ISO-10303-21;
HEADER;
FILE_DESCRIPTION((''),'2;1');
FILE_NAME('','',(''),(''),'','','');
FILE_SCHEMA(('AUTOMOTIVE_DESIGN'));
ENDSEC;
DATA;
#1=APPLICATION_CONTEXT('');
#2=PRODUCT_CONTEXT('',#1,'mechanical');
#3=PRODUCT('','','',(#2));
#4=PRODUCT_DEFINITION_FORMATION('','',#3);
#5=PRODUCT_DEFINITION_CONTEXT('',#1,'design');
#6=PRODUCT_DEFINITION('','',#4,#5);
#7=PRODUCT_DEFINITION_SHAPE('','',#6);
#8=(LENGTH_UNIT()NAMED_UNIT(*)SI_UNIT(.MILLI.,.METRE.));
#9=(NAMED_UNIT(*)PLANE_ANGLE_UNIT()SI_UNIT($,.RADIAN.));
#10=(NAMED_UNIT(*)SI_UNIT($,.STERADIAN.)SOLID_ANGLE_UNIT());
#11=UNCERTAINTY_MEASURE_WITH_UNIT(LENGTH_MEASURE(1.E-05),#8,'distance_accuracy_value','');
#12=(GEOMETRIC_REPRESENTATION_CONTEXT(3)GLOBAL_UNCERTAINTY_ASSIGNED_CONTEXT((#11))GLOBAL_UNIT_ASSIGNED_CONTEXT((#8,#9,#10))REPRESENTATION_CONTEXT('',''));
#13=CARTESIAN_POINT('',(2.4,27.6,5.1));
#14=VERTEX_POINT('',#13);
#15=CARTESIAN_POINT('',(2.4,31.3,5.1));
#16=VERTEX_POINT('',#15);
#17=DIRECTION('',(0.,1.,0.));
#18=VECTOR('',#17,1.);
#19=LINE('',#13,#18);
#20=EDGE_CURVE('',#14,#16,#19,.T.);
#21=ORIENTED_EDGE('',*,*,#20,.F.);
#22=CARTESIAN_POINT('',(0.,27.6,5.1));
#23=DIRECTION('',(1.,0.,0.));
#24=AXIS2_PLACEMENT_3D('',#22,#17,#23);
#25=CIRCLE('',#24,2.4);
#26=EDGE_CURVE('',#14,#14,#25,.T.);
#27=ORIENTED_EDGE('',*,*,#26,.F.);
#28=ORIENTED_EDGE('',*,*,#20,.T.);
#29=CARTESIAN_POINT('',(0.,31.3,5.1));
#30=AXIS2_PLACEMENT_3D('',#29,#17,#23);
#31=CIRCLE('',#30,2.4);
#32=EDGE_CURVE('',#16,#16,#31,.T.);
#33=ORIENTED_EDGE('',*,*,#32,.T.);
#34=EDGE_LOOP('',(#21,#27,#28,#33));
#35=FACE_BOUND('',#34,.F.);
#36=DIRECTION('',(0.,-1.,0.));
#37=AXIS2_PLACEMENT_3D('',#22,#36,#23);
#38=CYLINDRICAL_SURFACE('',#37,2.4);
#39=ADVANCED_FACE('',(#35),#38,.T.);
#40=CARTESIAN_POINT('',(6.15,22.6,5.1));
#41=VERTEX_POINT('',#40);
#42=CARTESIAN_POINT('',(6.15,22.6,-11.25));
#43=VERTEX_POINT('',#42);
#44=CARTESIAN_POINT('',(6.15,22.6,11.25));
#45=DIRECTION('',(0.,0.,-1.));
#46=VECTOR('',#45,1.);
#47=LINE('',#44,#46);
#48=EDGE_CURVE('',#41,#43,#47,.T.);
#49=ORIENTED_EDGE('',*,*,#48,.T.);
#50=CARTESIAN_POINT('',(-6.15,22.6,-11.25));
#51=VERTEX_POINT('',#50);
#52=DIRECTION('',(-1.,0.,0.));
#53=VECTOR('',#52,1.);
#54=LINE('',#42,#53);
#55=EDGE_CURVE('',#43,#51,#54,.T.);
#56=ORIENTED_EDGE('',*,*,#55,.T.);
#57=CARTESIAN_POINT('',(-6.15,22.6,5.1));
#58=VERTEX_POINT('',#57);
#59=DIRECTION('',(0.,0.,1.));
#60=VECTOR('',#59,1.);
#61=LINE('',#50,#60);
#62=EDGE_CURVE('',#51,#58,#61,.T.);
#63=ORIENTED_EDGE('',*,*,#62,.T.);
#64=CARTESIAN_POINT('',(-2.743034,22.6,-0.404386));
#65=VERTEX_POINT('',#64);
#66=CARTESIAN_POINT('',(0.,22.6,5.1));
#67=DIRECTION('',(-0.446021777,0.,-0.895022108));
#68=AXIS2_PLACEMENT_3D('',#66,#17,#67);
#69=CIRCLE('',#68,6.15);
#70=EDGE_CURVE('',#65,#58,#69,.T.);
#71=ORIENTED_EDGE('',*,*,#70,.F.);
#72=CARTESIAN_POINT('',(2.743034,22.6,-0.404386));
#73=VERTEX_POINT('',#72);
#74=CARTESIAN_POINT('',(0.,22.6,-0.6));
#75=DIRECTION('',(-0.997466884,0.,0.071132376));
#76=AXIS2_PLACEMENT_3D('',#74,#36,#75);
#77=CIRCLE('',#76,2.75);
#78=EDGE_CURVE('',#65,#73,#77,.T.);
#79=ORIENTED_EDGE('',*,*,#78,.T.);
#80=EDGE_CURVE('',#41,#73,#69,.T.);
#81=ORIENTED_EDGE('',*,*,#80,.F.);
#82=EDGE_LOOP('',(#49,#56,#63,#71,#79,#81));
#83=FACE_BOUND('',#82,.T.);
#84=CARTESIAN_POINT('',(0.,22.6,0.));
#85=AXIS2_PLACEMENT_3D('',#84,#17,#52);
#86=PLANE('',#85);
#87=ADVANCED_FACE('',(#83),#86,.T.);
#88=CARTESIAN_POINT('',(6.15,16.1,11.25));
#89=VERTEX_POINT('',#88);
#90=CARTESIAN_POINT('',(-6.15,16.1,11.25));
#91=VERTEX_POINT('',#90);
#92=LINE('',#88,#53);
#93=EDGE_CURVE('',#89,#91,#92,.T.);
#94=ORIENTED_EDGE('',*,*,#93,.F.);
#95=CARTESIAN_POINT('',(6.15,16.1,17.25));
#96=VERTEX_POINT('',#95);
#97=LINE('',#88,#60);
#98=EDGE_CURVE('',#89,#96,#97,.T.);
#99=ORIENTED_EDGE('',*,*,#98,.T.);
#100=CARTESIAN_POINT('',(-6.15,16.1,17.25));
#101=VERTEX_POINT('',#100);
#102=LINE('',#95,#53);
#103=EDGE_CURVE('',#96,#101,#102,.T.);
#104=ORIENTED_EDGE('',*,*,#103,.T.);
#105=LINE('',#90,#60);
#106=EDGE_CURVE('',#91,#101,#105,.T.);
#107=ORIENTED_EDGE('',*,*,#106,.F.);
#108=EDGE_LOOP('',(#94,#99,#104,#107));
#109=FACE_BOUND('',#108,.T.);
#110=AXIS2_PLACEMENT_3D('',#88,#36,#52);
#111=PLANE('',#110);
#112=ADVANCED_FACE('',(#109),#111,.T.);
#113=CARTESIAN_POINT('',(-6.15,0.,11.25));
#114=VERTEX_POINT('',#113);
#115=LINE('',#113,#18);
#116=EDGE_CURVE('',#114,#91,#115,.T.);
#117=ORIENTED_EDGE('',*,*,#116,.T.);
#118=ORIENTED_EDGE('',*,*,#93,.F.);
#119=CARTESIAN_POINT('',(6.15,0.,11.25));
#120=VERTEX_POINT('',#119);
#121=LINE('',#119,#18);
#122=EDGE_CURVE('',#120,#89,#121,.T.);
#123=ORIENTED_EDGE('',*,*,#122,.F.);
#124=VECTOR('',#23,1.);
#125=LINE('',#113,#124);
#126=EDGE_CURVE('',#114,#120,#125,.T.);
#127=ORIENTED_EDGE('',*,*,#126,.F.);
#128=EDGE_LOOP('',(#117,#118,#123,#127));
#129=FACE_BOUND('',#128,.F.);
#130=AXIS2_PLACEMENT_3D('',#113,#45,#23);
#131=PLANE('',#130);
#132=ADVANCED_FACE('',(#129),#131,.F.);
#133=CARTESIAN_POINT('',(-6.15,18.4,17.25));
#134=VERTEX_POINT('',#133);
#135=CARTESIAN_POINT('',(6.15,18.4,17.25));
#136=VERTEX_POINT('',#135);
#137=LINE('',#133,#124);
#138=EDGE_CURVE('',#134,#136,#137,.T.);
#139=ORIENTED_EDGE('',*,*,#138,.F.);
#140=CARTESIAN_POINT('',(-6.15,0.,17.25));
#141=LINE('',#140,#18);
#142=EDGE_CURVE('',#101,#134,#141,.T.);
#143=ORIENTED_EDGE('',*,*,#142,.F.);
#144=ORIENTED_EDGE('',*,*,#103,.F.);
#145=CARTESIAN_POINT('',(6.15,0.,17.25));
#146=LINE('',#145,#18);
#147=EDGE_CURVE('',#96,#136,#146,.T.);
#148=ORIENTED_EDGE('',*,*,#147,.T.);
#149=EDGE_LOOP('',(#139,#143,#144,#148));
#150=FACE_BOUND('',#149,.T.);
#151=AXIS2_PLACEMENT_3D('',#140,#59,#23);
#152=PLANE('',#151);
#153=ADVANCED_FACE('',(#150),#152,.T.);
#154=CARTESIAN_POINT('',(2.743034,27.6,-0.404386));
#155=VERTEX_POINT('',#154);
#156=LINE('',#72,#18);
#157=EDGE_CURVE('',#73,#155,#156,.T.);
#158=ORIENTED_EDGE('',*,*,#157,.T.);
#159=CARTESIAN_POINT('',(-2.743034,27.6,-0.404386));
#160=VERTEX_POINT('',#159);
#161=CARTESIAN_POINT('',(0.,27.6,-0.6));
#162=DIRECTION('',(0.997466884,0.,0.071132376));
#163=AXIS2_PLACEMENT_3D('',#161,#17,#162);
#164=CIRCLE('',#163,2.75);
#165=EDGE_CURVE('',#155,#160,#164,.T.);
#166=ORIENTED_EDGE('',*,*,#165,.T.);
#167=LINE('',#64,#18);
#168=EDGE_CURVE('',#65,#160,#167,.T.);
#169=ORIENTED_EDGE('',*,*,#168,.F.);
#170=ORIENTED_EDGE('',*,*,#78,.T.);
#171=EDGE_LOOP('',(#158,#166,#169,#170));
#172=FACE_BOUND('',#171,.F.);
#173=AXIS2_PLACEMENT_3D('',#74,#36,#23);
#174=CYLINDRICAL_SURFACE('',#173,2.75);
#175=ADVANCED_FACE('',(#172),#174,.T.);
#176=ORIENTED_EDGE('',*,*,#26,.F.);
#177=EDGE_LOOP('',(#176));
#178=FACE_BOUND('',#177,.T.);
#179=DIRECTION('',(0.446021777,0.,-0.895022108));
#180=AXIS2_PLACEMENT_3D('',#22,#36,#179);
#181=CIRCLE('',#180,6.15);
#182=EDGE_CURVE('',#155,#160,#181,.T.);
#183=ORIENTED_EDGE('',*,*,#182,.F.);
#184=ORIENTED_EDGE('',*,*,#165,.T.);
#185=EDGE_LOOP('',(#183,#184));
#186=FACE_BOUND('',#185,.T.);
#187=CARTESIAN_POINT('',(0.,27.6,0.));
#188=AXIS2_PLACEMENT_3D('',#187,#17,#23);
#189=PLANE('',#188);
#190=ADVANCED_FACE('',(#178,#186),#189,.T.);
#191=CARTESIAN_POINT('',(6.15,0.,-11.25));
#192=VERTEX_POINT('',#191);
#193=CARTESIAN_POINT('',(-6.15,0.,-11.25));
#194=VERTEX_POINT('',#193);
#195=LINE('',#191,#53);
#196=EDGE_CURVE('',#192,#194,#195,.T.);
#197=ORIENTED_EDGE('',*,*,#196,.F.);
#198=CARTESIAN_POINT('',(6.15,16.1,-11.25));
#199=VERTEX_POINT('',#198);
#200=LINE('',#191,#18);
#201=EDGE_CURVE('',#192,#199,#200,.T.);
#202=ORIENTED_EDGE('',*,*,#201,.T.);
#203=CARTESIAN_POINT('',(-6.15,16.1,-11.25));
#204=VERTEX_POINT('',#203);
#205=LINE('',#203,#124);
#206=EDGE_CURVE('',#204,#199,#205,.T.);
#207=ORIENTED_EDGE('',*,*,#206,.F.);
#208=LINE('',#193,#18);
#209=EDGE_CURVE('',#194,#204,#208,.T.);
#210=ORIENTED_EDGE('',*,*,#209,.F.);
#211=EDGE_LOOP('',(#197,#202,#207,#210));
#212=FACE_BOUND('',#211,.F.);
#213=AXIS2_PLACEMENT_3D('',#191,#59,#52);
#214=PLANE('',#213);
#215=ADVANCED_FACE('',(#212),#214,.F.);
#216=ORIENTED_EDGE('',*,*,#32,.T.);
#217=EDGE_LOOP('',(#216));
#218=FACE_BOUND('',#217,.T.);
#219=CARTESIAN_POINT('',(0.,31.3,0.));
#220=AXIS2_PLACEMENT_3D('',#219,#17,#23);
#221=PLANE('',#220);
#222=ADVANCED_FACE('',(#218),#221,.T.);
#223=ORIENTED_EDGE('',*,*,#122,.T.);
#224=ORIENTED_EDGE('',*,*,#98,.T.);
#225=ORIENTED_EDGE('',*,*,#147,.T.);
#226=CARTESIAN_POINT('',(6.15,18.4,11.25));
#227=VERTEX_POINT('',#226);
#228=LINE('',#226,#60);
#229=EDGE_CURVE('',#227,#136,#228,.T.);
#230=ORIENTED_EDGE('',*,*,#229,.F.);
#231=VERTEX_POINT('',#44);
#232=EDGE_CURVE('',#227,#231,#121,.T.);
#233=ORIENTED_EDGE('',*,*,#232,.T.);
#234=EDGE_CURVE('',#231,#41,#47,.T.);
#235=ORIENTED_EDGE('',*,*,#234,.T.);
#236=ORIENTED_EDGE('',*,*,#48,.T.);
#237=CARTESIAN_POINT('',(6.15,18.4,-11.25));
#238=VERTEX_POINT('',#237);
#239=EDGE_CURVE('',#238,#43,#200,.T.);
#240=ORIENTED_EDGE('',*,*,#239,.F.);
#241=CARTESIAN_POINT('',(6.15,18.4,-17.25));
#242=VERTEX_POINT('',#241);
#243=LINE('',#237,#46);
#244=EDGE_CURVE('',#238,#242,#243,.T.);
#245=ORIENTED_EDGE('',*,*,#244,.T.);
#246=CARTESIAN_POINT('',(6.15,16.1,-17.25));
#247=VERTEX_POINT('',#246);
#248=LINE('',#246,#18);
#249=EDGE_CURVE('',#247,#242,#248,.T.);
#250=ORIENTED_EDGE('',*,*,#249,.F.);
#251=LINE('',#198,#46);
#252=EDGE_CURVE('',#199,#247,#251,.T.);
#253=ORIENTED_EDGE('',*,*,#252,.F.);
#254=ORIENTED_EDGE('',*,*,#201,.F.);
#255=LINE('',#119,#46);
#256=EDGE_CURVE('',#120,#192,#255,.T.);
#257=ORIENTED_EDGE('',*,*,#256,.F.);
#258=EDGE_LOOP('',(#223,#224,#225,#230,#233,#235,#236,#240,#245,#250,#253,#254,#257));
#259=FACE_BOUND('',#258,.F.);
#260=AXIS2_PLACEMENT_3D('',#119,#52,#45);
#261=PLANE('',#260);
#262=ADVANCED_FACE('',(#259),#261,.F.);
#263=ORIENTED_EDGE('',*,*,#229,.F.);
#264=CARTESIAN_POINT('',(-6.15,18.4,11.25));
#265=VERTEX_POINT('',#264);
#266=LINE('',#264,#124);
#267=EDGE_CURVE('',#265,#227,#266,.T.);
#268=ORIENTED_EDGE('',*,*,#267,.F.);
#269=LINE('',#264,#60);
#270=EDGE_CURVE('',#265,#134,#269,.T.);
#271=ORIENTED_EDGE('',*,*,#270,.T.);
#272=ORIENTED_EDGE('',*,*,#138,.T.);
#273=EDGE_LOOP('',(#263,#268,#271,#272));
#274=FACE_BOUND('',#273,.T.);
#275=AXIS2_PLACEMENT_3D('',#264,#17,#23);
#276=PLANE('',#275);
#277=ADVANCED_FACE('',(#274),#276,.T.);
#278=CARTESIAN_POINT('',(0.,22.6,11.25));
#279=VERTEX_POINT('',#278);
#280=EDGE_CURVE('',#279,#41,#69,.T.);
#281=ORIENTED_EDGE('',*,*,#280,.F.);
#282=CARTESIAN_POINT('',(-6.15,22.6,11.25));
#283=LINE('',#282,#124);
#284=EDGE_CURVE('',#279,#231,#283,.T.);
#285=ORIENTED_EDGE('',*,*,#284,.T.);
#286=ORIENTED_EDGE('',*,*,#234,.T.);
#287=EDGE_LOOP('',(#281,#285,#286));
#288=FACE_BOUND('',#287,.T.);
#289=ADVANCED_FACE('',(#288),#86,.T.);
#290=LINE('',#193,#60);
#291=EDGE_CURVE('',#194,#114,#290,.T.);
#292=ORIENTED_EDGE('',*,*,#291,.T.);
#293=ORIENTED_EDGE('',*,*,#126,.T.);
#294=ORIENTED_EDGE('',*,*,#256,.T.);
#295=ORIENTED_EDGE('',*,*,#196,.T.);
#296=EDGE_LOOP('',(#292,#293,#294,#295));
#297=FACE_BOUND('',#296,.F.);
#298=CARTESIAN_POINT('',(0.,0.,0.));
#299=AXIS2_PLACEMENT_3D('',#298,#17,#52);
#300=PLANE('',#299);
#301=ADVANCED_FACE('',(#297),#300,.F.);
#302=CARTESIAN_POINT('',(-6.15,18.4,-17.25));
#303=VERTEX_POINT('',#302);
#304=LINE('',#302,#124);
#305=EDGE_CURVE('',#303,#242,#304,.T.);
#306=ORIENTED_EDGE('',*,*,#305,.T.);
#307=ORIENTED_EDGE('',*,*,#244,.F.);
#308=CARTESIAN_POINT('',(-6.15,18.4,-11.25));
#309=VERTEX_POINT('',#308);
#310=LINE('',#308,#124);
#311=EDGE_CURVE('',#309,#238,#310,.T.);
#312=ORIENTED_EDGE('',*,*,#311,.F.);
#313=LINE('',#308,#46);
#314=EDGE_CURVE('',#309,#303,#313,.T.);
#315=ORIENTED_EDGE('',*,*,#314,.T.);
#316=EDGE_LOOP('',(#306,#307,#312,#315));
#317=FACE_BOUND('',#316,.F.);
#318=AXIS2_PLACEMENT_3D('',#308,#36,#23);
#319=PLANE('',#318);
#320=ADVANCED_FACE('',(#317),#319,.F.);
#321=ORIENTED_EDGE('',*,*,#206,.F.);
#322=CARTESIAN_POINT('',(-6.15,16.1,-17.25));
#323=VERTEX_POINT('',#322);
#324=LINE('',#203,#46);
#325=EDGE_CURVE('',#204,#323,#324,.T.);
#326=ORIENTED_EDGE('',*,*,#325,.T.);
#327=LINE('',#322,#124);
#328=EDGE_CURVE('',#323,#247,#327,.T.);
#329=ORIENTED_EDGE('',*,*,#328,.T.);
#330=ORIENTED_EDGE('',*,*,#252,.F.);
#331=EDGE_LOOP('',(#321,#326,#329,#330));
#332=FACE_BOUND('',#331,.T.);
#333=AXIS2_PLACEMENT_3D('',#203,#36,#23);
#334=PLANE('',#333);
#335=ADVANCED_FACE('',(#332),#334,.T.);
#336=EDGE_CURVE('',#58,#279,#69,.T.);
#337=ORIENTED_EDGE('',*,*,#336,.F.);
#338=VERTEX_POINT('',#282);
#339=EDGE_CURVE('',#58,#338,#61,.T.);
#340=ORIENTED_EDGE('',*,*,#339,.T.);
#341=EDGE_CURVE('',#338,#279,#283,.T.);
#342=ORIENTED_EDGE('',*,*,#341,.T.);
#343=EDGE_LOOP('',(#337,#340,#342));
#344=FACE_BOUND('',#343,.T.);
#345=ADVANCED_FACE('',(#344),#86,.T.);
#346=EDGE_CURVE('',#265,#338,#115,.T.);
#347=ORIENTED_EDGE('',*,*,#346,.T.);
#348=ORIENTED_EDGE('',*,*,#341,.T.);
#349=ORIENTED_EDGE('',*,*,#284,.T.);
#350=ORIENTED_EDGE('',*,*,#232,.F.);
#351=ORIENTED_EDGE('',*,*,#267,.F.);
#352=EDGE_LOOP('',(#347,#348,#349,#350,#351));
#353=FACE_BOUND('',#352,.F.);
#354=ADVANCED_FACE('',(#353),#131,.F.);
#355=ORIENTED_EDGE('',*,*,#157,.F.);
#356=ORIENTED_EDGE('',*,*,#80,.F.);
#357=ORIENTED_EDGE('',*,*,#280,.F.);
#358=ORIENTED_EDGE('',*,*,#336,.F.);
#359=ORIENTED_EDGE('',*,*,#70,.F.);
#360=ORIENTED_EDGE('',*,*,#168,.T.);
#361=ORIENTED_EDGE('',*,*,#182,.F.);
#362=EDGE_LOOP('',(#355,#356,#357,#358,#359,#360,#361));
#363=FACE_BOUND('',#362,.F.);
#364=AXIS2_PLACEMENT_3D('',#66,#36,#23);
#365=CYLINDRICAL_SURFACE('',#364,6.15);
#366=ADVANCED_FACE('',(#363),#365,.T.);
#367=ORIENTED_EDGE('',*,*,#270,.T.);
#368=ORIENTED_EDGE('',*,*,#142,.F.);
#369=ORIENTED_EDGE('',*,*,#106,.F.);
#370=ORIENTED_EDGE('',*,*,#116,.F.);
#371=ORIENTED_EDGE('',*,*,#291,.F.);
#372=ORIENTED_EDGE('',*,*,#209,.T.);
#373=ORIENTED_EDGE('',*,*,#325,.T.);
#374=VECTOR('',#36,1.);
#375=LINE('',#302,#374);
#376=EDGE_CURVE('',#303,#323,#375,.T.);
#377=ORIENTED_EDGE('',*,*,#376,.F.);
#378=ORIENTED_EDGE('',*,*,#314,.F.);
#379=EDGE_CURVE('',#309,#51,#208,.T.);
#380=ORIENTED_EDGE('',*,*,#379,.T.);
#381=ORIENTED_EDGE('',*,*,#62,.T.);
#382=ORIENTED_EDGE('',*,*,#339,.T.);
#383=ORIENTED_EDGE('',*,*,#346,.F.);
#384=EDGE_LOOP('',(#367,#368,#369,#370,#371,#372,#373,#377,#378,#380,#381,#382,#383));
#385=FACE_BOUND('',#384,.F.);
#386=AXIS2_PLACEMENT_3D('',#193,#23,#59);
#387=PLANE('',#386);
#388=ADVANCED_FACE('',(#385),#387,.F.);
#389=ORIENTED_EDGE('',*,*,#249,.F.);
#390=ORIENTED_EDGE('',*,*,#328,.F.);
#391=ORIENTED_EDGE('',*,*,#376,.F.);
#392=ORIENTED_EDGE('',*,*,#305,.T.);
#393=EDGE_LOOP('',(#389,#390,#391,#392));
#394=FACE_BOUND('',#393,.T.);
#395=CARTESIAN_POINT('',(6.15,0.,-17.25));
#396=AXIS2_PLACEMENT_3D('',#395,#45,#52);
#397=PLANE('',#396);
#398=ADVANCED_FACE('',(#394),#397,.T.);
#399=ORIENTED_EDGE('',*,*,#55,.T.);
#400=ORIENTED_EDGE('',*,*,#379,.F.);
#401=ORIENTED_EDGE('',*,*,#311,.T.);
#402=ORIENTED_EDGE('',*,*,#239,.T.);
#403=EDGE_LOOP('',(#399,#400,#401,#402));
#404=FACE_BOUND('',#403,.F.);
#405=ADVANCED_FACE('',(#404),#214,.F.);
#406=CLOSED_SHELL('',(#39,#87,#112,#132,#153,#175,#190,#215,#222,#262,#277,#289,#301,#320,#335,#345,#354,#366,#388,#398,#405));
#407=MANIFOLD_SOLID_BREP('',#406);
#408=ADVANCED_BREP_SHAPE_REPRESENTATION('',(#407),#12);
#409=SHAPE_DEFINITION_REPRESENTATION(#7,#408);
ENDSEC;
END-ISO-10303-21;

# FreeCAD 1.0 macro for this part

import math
import FreeCAD as App
import Part
import Sketcher

V = App.Vector
Q = App.Units.Quantity

doc = App.newDocument("Part")
body = doc.addObject("PartDesign::Body", "Body")

sketch1 = body.newObject("Sketcher::SketchObject", "Sketch")
sketch1.AttachmentSupport = (doc.getObject("XZ_Plane"), [""])
sketch1.MapMode = "FlatFace"
sketch1.addGeometry(Part.LineSegment(V(-6, 11, 0), V(6, 11, 0)), False)
sketch1.addGeometry(Part.LineSegment(V(6, 11, 0), V(6, -11, 0)), False)
sketch1.addGeometry(Part.LineSegment(V(6, -11, 0), V(-6, -11, 0)), False)
sketch1.addGeometry(Part.LineSegment(V(-6, -11, 0), V(-6, 11, 0)), False)
sketch1.addConstraint(Sketcher.Constraint("Coincident", 0, 2, 1, 1))
sketch1.addConstraint(Sketcher.Constraint("Coincident", 1, 2, 2, 1))
sketch1.addConstraint(Sketcher.Constraint("Coincident", 2, 2, 3, 1))
sketch1.addConstraint(Sketcher.Constraint("Coincident", 3, 2, 0, 1))
sketch1.addConstraint(Sketcher.Constraint("Horizontal", 0))
sketch1.addConstraint(Sketcher.Constraint("Vertical", 1))
sketch1.addConstraint(Sketcher.Constraint("Horizontal", 2))
sketch1.addConstraint(Sketcher.Constraint("Vertical", 3))
sketch1.addConstraint(Sketcher.Constraint("Symmetric", 0, 2, 2, 2, -1, 1))
sketch1.addConstraint(Sketcher.Constraint("DistanceX", 0, 1, 0, 2, Q("12.3 mm")))
sketch1.addConstraint(Sketcher.Constraint("DistanceY", 1, 2, 1, 1, Q("22.5 mm")))
pad1 = body.newObject("PartDesign::Pad", "Pad")
pad1.Profile = sketch1
pad1.Length = 22.6
pad1.Reversed = True

sketch2 = body.newObject("Sketcher::SketchObject", "Sketch001")
sketch2.AttachmentSupport = (doc.getObject("XY_Plane"), [""])
sketch2.MapMode = "FlatFace"
sketch2.AttachmentOffset = App.Placement(V(0, 0, 11.25), App.Rotation())
sketch2.addGeometry(Part.LineSegment(V(-6.2, 18.4, 0), V(-6.2, 16.1, 0)), False)
sketch2.addGeometry(Part.LineSegment(V(-6.2, 16.1, 0), V(6.2, 16.1, 0)), False)
sketch2.addGeometry(Part.LineSegment(V(6.2, 16.1, 0), V(6.2, 18.4, 0)), False)
sketch2.addGeometry(Part.LineSegment(V(6.2, 18.4, 0), V(-6.2, 18.4, 0)), False)
sketch2.addConstraint(Sketcher.Constraint("Coincident", 0, 2, 1, 1))
sketch2.addConstraint(Sketcher.Constraint("Coincident", 1, 2, 2, 1))
sketch2.addConstraint(Sketcher.Constraint("Coincident", 2, 2, 3, 1))
sketch2.addConstraint(Sketcher.Constraint("Coincident", 3, 2, 0, 1))
sketch2.addConstraint(Sketcher.Constraint("Vertical", 0))
sketch2.addConstraint(Sketcher.Constraint("Horizontal", 1))
sketch2.addConstraint(Sketcher.Constraint("Vertical", 2))
sketch2.addConstraint(Sketcher.Constraint("Horizontal", 3))
sketch2.addConstraint(Sketcher.Constraint("DistanceY", 0, 2, 0, 1, Q("2.3 mm")))
sketch2.addConstraint(Sketcher.Constraint("DistanceY", -1, 1, 0, 2, Q("16.1 mm")))
sketch2.addConstraint(Sketcher.Constraint("DistanceX", 1, 1, 1, 2, Q("12.3 mm")))
sketch2.addConstraint(Sketcher.Constraint("DistanceX", 0, 2, -1, 1, Q("6.15 mm")))
pad2 = body.newObject("PartDesign::Pad", "Pad001")
pad2.Profile = sketch2
pad2.Length = 6

sketch3 = body.newObject("Sketcher::SketchObject", "Sketch002")
sketch3.AttachmentSupport = (doc.getObject("XY_Plane"), [""])
sketch3.MapMode = "FlatFace"
sketch3.AttachmentOffset = App.Placement(V(0, 0, -11.25), App.Rotation())
sketch3.addGeometry(Part.LineSegment(V(-6.2, 16.1, 0), V(-6.2, 18.4, 0)), False)
sketch3.addGeometry(Part.LineSegment(V(-6.2, 18.4, 0), V(6.2, 18.4, 0)), False)
sketch3.addGeometry(Part.LineSegment(V(6.2, 18.4, 0), V(6.2, 16.1, 0)), False)
sketch3.addGeometry(Part.LineSegment(V(6.2, 16.1, 0), V(-6.2, 16.1, 0)), False)
sketch3.addConstraint(Sketcher.Constraint("Coincident", 0, 2, 1, 1))
sketch3.addConstraint(Sketcher.Constraint("Coincident", 1, 2, 2, 1))
sketch3.addConstraint(Sketcher.Constraint("Coincident", 2, 2, 3, 1))
sketch3.addConstraint(Sketcher.Constraint("Coincident", 3, 2, 0, 1))
sketch3.addConstraint(Sketcher.Constraint("Vertical", 0))
sketch3.addConstraint(Sketcher.Constraint("Horizontal", 1))
sketch3.addConstraint(Sketcher.Constraint("Vertical", 2))
sketch3.addConstraint(Sketcher.Constraint("Horizontal", 3))
sketch3.addConstraint(Sketcher.Constraint("DistanceX", 1, 1, 1, 2, Q("12.3 mm")))
sketch3.addConstraint(Sketcher.Constraint("DistanceY", 0, 1, 0, 2, Q("2.3 mm")))
sketch3.addConstraint(Sketcher.Constraint("DistanceY", -1, 1, 0, 2, Q("18.4 mm")))
sketch3.addConstraint(Sketcher.Constraint("DistanceX", 0, 2, -1, 1, Q("6.15 mm")))
pad3 = body.newObject("PartDesign::Pad", "Pad002")
pad3.Profile = sketch3
pad3.Length = 6
pad3.Reversed = True

sketch4 = body.newObject("Sketcher::SketchObject", "Sketch003")
sketch4.AttachmentSupport = (doc.getObject("XZ_Plane"), [""])
sketch4.MapMode = "FlatFace"
sketch4.AttachmentOffset = App.Placement(V(0, 0, -22.6), App.Rotation())
sketch4.addGeometry(Part.ArcOfCircle(Part.Circle(V(0, -0.6, 0), V(0, 0, 1), 2.8), math.radians(176), math.radians(364)), False)
sketch4.addGeometry(Part.ArcOfCircle(Part.Circle(V(0, 5.1, 0), V(0, 0, 1), 6.2), math.radians(-64), math.radians(244)), False)
sketch4.addConstraint(Sketcher.Constraint("Coincident", 0, 1, 1, 2))
sketch4.addConstraint(Sketcher.Constraint("Coincident", 1, 1, 0, 2))
sketch4.addConstraint(Sketcher.Constraint("Symmetric", 0, 1, 1, 1, -2))
sketch4.addConstraint(Sketcher.Constraint("Radius", 0, Q("2.75 mm")))
sketch4.addConstraint(Sketcher.Constraint("Radius", 1, Q("6.15 mm")))
sketch4.addConstraint(Sketcher.Constraint("DistanceY", 0, 3, -1, 1, Q("0.6 mm")))
sketch4.addConstraint(Sketcher.Constraint("DistanceY", -1, 1, 1, 3, Q("5.1 mm")))
pad4 = body.newObject("PartDesign::Pad", "Pad003")
pad4.Profile = sketch4
pad4.Length = 5
pad4.Reversed = True

sketch5 = body.newObject("Sketcher::SketchObject", "Sketch004")
sketch5.AttachmentSupport = (doc.getObject("XZ_Plane"), [""])
sketch5.MapMode = "FlatFace"
sketch5.AttachmentOffset = App.Placement(V(0, 0, -27.6), App.Rotation())
sketch5.addGeometry(Part.Circle(V(0, 5.1, 0), V(0, 0, 1), 2.4), False)
sketch5.addConstraint(Sketcher.Constraint("PointOnObject", 0, 3, -2))
sketch5.addConstraint(Sketcher.Constraint("Diameter", 0, Q("4.8 mm")))
sketch5.addConstraint(Sketcher.Constraint("DistanceY", -1, 1, 0, 3, Q("5.1 mm")))
pad5 = body.newObject("PartDesign::Pad", "Pad004")
pad5.Profile = sketch5
pad5.Length = 3.7
pad5.Reversed = True

doc.recompute()
